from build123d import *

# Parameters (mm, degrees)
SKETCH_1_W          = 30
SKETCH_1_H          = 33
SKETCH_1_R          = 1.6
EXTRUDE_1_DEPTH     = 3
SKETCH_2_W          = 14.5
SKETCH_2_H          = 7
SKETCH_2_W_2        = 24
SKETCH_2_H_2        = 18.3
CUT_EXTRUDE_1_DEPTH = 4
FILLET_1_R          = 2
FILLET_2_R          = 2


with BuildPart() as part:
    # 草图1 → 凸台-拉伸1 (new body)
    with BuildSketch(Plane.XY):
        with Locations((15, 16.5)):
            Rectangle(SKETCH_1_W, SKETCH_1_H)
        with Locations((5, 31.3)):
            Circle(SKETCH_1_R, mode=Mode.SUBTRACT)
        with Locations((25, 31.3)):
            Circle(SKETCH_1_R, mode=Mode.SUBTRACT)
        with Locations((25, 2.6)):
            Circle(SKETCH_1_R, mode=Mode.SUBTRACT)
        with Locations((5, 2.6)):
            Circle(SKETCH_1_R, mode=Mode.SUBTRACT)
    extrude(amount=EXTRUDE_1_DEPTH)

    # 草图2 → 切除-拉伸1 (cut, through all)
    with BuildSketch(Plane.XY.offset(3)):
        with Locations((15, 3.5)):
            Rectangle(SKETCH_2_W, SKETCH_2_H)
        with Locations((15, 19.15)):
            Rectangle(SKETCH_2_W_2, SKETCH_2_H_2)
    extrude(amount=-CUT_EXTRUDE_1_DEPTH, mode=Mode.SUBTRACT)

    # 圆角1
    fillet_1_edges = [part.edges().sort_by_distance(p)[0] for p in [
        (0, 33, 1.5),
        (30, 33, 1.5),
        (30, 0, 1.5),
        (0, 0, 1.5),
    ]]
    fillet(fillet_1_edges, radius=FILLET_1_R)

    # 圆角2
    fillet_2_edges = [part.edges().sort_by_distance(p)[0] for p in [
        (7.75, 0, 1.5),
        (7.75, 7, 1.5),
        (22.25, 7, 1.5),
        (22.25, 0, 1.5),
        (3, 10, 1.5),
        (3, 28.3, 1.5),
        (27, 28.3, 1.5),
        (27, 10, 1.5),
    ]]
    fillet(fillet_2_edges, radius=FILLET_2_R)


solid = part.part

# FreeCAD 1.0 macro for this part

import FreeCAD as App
import Part
import Sketcher
Q = App.Units.Quantity


def edges_at(feature, points):
    """Names of the edges that pass closest to the given points."""
    edges = feature.Shape.Edges
    near = lambda p: min(range(len(edges)), key=lambda i: edges[i].distToShape(Part.Vertex(*p))[0])
    return sorted({f"Edge{near(p) + 1}" for p in points})

doc = App.newDocument("Part")
body = doc.addObject("PartDesign::Body", "Body")

# Sketch on XY plane
sketch1 = body.newObject("Sketcher::SketchObject", "Sketch")
sketch1.AttachmentSupport = (doc.getObject("XY_Plane"), [""])
sketch1.MapMode = "FlatFace"
sketch1.addGeometry([
    Part.LineSegment(App.Vector(0, 33, 0), App.Vector(0, 0, 0)),  # 0
    Part.LineSegment(App.Vector(0, 0, 0), App.Vector(30, 0, 0)),  # 1
    Part.LineSegment(App.Vector(30, 0, 0), App.Vector(30, 33, 0)),  # 2
    Part.LineSegment(App.Vector(30, 33, 0), App.Vector(0, 33, 0)),  # 3
    Part.Circle(App.Vector(5, 2.6, 0), App.Vector(0, 0, 1), 1.6),  # 4
    Part.Circle(App.Vector(25, 2.6, 0), App.Vector(0, 0, 1), 1.6),  # 5
    Part.Circle(App.Vector(5, 31.3, 0), App.Vector(0, 0, 1), 1.6),  # 6
    Part.Circle(App.Vector(25, 31.3, 0), App.Vector(0, 0, 1), 1.6),  # 7
], False)
sketch1.addConstraint([
    Sketcher.Constraint("Coincident", 0, 2, 1, 1),
    Sketcher.Constraint("Coincident", 1, 2, 2, 1),
    Sketcher.Constraint("Coincident", 2, 2, 3, 1),
    Sketcher.Constraint("Coincident", 3, 2, 0, 1),
    Sketcher.Constraint("Vertical", 0),
    Sketcher.Constraint("Horizontal", 1),
    Sketcher.Constraint("Vertical", 2),
    Sketcher.Constraint("Horizontal", 3),
    Sketcher.Constraint("Coincident", 0, 2, -1, 1),
    Sketcher.Constraint("Equal", 4, 5),
    Sketcher.Constraint("Equal", 5, 6),
    Sketcher.Constraint("Equal", 6, 7),
    Sketcher.Constraint("Horizontal", 4, 3, 5, 3),
    Sketcher.Constraint("Horizontal", 6, 3, 7, 3),
    Sketcher.Constraint("Vertical", 4, 3, 6, 3),
    Sketcher.Constraint("Vertical", 5, 3, 7, 3),
    Sketcher.Constraint("Diameter", 4, Q("3.2 mm")),
    Sketcher.Constraint("DistanceX", 1, 1, 1, 2, Q("30 mm")),
    Sketcher.Constraint("DistanceY", 0, 2, 0, 1, Q("33 mm")),
    Sketcher.Constraint("DistanceX", -1, 1, 4, 3, Q("5 mm")),
    Sketcher.Constraint("DistanceX", -1, 1, 5, 3, Q("25 mm")),
    Sketcher.Constraint("DistanceY", -1, 1, 4, 3, Q("2.6 mm")),
    Sketcher.Constraint("DistanceY", -1, 1, 6, 3, Q("31.3 mm")),
])
pad1 = body.newObject("PartDesign::Pad", "Pad")
pad1.Profile = sketch1
pad1.Length = 3

# Sketch on XY plane
sketch2 = body.newObject("Sketcher::SketchObject", "Sketch001")
sketch2.AttachmentSupport = (doc.getObject("XY_Plane"), [""])
sketch2.MapMode = "FlatFace"
sketch2.AttachmentOffset = App.Placement(App.Vector(0, 0, 3), App.Rotation())
sketch2.addGeometry([
    Part.LineSegment(App.Vector(8, 7, 0), App.Vector(8, 0, 0)),  # 0
    Part.LineSegment(App.Vector(8, 0, 0), App.Vector(22, 0, 0)),  # 1
    Part.LineSegment(App.Vector(22, 0, 0), App.Vector(22, 7, 0)),  # 2
    Part.LineSegment(App.Vector(22, 7, 0), App.Vector(8, 7, 0)),  # 3
    Part.LineSegment(App.Vector(3, 28, 0), App.Vector(3, 10, 0)),  # 4
    Part.LineSegment(App.Vector(3, 10, 0), App.Vector(27, 10, 0)),  # 5
    Part.LineSegment(App.Vector(27, 10, 0), App.Vector(27, 28, 0)),  # 6
    Part.LineSegment(App.Vector(27, 28, 0), App.Vector(3, 28, 0)),  # 7
], False)
sketch2.addConstraint([
    Sketcher.Constraint("Coincident", 0, 2, 1, 1),
    Sketcher.Constraint("Coincident", 1, 2, 2, 1),
    Sketcher.Constraint("Coincident", 2, 2, 3, 1),
    Sketcher.Constraint("Coincident", 3, 2, 0, 1),
    Sketcher.Constraint("Coincident", 4, 2, 5, 1),
    Sketcher.Constraint("Coincident", 5, 2, 6, 1),
    Sketcher.Constraint("Coincident", 6, 2, 7, 1),
    Sketcher.Constraint("Coincident", 7, 2, 4, 1),
    Sketcher.Constraint("Vertical", 0),
    Sketcher.Constraint("Horizontal", 1),
    Sketcher.Constraint("Vertical", 2),
    Sketcher.Constraint("Horizontal", 3),
    Sketcher.Constraint("Vertical", 4),
    Sketcher.Constraint("Horizontal", 5),
    Sketcher.Constraint("Vertical", 6),
    Sketcher.Constraint("Horizontal", 7),
    Sketcher.Constraint("PointOnObject", 0, 2, -1),
    Sketcher.Constraint("DistanceX", 5, 1, 5, 2, Q("24 mm")),
    Sketcher.Constraint("DistanceY", 0, 2, 0, 1, Q("7 mm")),
    Sketcher.Constraint("DistanceX", 1, 1, 1, 2, Q("14.5 mm")),
    Sketcher.Constraint("DistanceY", 4, 2, 4, 1, Q("18.3 mm")),
    Sketcher.Constraint("DistanceX", -1, 1, 4, 2, Q("3 mm")),
    Sketcher.Constraint("DistanceY", -1, 1, 4, 2, Q("10 mm")),
    Sketcher.Constraint("DistanceX", -1, 1, 0, 2, Q("7.75 mm")),
])
pocket1 = body.newObject("PartDesign::Pocket", "Pocket")
pocket1.Profile = sketch2
pocket1.Type = "ThroughAll"
doc.recompute()

fillet = body.newObject("PartDesign::Fillet", "Fillet")
fillet.Base = (pocket1, edges_at(pocket1, [
    (0, 33, 1.5),
    (30, 33, 1.5),
    (30, 0, 1.5),
    (0, 0, 1.5),
]))
fillet.Radius = 2
doc.recompute()

fillet2 = body.newObject("PartDesign::Fillet", "Fillet001")
fillet2.Base = (fillet, edges_at(fillet, [
    (7.75, 0, 1.5),
    (7.75, 7, 1.5),
    (22.25, 7, 1.5),
    (22.25, 0, 1.5),
    (3, 10, 1.5),
    (3, 28.3, 1.5),
    (27, 28.3, 1.5),
    (27, 10, 1.5),
]))
fillet2.Radius = 2

doc.recompute()
